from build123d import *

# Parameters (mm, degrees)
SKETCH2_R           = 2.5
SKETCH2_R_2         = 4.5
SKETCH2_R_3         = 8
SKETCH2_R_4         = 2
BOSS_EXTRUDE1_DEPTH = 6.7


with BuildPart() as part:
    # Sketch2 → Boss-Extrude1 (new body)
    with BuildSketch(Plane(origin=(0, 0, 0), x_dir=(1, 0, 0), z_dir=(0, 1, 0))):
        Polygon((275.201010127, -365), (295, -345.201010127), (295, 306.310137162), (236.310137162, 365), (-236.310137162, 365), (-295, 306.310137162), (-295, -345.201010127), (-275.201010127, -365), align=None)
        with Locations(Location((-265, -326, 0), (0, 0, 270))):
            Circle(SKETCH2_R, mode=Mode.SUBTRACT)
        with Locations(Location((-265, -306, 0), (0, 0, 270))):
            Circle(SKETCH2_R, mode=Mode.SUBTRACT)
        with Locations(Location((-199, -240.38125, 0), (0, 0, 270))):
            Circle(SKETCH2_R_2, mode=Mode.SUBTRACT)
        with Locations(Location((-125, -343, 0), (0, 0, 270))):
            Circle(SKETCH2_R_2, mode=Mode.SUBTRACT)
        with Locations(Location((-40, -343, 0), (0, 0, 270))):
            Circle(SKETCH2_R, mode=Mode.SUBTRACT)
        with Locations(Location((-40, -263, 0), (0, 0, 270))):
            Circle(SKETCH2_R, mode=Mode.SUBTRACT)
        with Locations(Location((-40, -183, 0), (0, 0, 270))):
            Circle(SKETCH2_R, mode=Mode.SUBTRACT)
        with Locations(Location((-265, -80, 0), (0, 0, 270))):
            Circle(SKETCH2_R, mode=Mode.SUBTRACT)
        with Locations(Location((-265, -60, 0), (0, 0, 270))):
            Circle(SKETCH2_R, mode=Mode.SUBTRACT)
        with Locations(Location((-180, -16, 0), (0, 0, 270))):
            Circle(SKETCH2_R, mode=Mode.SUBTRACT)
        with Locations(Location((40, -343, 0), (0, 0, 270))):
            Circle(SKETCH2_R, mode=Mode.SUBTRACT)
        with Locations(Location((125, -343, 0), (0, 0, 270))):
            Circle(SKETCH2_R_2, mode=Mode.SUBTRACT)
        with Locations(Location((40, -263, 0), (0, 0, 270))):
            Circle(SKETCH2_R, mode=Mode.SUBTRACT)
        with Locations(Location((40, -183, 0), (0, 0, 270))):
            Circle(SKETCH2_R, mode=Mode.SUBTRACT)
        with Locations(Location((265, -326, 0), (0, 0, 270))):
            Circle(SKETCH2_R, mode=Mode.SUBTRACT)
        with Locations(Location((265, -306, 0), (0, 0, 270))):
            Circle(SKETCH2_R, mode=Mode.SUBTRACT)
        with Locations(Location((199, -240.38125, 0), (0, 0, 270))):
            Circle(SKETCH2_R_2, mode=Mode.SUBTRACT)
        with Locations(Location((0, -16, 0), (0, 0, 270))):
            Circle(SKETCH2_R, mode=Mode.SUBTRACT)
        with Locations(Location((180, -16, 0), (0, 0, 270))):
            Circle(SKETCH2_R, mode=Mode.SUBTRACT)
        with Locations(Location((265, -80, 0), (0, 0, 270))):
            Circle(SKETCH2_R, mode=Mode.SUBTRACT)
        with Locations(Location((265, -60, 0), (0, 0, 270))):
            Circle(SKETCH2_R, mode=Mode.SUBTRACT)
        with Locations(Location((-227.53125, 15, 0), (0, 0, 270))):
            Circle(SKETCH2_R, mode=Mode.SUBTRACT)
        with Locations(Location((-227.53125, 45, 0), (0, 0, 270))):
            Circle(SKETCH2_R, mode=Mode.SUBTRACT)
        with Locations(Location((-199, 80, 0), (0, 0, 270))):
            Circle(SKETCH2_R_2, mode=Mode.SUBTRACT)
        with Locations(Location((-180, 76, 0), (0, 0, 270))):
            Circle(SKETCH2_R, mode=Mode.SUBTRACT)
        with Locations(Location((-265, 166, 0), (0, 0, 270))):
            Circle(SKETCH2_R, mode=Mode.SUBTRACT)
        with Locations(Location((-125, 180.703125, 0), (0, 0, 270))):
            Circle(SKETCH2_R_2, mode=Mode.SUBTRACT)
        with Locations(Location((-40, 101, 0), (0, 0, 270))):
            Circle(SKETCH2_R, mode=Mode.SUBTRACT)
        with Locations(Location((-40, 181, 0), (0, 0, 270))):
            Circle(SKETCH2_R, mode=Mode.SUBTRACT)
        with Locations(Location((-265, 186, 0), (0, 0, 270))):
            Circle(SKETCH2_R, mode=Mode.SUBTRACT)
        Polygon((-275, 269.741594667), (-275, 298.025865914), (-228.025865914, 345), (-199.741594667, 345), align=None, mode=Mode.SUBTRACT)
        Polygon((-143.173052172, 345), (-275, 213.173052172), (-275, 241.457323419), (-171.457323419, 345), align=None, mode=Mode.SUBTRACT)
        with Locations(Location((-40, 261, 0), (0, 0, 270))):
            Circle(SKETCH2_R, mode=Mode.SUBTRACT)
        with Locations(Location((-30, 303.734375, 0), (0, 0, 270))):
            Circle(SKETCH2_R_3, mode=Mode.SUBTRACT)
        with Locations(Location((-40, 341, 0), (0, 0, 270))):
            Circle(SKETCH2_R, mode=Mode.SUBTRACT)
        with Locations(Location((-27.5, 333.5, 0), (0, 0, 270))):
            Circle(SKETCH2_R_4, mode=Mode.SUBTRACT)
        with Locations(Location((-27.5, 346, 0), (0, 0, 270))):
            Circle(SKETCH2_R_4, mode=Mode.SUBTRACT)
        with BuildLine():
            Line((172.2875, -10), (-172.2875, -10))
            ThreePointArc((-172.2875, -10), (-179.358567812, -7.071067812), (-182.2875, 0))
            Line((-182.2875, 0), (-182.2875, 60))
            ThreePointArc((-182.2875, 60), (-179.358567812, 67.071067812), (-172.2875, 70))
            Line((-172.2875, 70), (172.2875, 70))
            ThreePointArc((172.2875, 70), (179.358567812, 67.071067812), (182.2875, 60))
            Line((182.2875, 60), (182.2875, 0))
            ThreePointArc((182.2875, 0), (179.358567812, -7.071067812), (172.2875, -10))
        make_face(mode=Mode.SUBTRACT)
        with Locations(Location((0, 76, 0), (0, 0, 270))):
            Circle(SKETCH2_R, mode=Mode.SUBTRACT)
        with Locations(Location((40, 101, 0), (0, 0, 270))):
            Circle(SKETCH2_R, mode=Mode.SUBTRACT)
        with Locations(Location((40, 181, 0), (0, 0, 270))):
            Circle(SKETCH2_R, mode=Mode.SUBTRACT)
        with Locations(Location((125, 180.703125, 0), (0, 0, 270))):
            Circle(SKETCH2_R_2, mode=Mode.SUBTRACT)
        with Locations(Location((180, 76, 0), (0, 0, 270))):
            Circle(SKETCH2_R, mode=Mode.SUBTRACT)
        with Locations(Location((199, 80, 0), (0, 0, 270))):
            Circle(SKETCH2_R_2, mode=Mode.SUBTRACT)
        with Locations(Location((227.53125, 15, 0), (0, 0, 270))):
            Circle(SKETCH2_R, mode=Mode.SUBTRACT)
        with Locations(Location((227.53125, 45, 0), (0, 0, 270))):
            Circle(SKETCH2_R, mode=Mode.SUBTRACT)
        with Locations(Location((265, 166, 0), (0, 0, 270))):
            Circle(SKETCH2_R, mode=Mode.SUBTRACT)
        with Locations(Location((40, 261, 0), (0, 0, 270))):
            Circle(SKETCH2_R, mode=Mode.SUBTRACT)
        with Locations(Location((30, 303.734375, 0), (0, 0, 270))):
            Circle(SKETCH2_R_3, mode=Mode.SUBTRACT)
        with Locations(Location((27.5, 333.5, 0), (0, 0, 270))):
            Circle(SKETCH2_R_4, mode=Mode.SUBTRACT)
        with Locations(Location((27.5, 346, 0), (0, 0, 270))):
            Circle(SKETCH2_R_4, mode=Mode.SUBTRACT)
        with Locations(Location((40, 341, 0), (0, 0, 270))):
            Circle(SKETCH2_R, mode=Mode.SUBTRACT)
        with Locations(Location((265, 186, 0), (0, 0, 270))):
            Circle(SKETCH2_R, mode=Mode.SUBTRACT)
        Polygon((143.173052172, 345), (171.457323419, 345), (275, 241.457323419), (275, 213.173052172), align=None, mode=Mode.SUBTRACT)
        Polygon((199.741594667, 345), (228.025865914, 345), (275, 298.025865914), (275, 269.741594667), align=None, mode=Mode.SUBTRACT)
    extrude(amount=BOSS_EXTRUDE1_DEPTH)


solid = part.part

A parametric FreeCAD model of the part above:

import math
import FreeCAD as App
import Part
import Sketcher

V = App.Vector
Q = App.Units.Quantity


def add_polygon(sketch, points):
    """Adds a closed chain of lines whose ends are joined by coincident constraints."""
    first, n = sketch.GeometryCount, len(points)
    for a, b in zip(points, points[1:] + points[:1]):
        sketch.addGeometry(Part.LineSegment(App.Vector(*a, 0), App.Vector(*b, 0)), False)
    for i in range(n):
        sketch.addConstraint(Sketcher.Constraint("Coincident", first + i, 2, first + (i + 1) % n, 1))

doc = App.newDocument("Part")
body = doc.addObject("PartDesign::Body", "Body")

sketch1 = body.newObject("Sketcher::SketchObject", "Sketch")
sketch1.AttachmentSupport = (doc.getObject("XZ_Plane"), [""])
sketch1.MapMode = "FlatFace"
add_polygon(sketch1, [(275.2, 365), (295, 345.2), (295, -306.3), (236.3, -365), (-236.3, -365), (-295, -306.3), (-295, 345.2), (-275.2, 365)])
sketch1.addGeometry(Part.Circle(V(-265, 326, 0), V(0, 0, 1), 2.5), False)
sketch1.addGeometry(Part.Circle(V(-265, 306, 0), V(0, 0, 1), 2.5), False)
sketch1.addGeometry(Part.Circle(V(-199, 240.4, 0), V(0, 0, 1), 4.5), False)
sketch1.addGeometry(Part.Circle(V(-125, 343, 0), V(0, 0, 1), 4.5), False)
sketch1.addGeometry(Part.Circle(V(-40, 343, 0), V(0, 0, 1), 2.5), False)
sketch1.addGeometry(Part.Circle(V(-40, 263, 0), V(0, 0, 1), 2.5), False)
sketch1.addGeometry(Part.Circle(V(-40, 183, 0), V(0, 0, 1), 2.5), False)
sketch1.addGeometry(Part.Circle(V(-265, 80, 0), V(0, 0, 1), 2.5), False)
sketch1.addGeometry(Part.Circle(V(-265, 60, 0), V(0, 0, 1), 2.5), False)
sketch1.addGeometry(Part.Circle(V(-180, 16, 0), V(0, 0, 1), 2.5), False)
sketch1.addGeometry(Part.Circle(V(40, 343, 0), V(0, 0, 1), 2.5), False)
sketch1.addGeometry(Part.Circle(V(40, 263, 0), V(0, 0, 1), 2.5), False)
sketch1.addGeometry(Part.Circle(V(125, 343, 0), V(0, 0, 1), 4.5), False)
sketch1.addGeometry(Part.Circle(V(40, 183, 0), V(0, 0, 1), 2.5), False)
sketch1.addGeometry(Part.Circle(V(265, 326, 0), V(0, 0, 1), 2.5), False)
sketch1.addGeometry(Part.Circle(V(265, 306, 0), V(0, 0, 1), 2.5), False)
sketch1.addGeometry(Part.Circle(V(199, 240.4, 0), V(0, 0, 1), 4.5), False)
sketch1.addGeometry(Part.Circle(V(0, 16, 0), V(0, 0, 1), 2.5), False)
sketch1.addGeometry(Part.Circle(V(180, 16, 0), V(0, 0, 1), 2.5), False)
sketch1.addGeometry(Part.Circle(V(265, 80, 0), V(0, 0, 1), 2.5), False)
sketch1.addGeometry(Part.Circle(V(265, 60, 0), V(0, 0, 1), 2.5), False)
sketch1.addGeometry(Part.Circle(V(-227.5, -15, 0), V(0, 0, 1), 2.5), False)
sketch1.addGeometry(Part.Circle(V(-227.5, -45, 0), V(0, 0, 1), 2.5), False)
sketch1.addGeometry(Part.Circle(V(-199, -80, 0), V(0, 0, 1), 4.5), False)
sketch1.addGeometry(Part.Circle(V(-180, -76, 0), V(0, 0, 1), 2.5), False)
sketch1.addGeometry(Part.Circle(V(-265, -166, 0), V(0, 0, 1), 2.5), False)
sketch1.addGeometry(Part.Circle(V(-40, -101, 0), V(0, 0, 1), 2.5), False)
sketch1.addGeometry(Part.Circle(V(-265, -186, 0), V(0, 0, 1), 2.5), False)
add_polygon(sketch1, [(-171.5, -345), (-143.2, -345), (-275, -213.2), (-275, -241.5)])
add_polygon(sketch1, [(-199.7, -345), (-275, -269.7), (-275, -298), (-228, -345)])
sketch1.addGeometry(Part.Circle(V(-125, -180.7, 0), V(0, 0, 1), 4.5), False)
sketch1.addGeometry(Part.Circle(V(-40, -181, 0), V(0, 0, 1), 2.5), False)
sketch1.addGeometry(Part.Circle(V(-40, -261, 0), V(0, 0, 1), 2.5), False)
sketch1.addGeometry(Part.Circle(V(-30, -303.7, 0), V(0, 0, 1), 8), False)
sketch1.addGeometry(Part.Circle(V(-40, -341, 0), V(0, 0, 1), 2.5), False)
sketch1.addGeometry(Part.Circle(V(-27.5, -333.5, 0), V(0, 0, 1), 2), False)
sketch1.addGeometry(Part.Circle(V(-27.5, -346, 0), V(0, 0, 1), 2), False)
sketch1.addGeometry(Part.ArcOfCircle(Part.Circle(V(172.3, 0, 0), V(0, 0, 1), 10), math.radians(0), math.radians(90)), False)
sketch1.addGeometry(Part.LineSegment(V(172.3, 10, 0), V(-172.3, 10, 0)), False)
sketch1.addGeometry(Part.ArcOfCircle(Part.Circle(V(-172.3, 0, 0), V(0, 0, 1), 10), math.radians(90), math.radians(180)), False)
sketch1.addGeometry(Part.LineSegment(V(-182.3, 0, 0), V(-182.3, -60, 0)), False)
sketch1.addGeometry(Part.ArcOfCircle(Part.Circle(V(-172.3, -60, 0), V(0, 0, 1), 10), math.radians(180), math.radians(270)), False)
sketch1.addGeometry(Part.LineSegment(V(-172.3, -70, 0), V(172.3, -70, 0)), False)
sketch1.addGeometry(Part.ArcOfCircle(Part.Circle(V(172.3, -60, 0), V(0, 0, 1), 10), math.radians(-90), math.radians(0)), False)
sketch1.addGeometry(Part.LineSegment(V(182.3, -60, 0), V(182.3, 0, 0)), False)
sketch1.addGeometry(Part.Circle(V(0, -76, 0), V(0, 0, 1), 2.5), False)
sketch1.addGeometry(Part.Circle(V(40, -101, 0), V(0, 0, 1), 2.5), False)
sketch1.addGeometry(Part.Circle(V(180, -76, 0), V(0, 0, 1), 2.5), False)
sketch1.addGeometry(Part.Circle(V(199, -80, 0), V(0, 0, 1), 4.5), False)
sketch1.addGeometry(Part.Circle(V(227.5, -15, 0), V(0, 0, 1), 2.5), False)
sketch1.addGeometry(Part.Circle(V(227.5, -45, 0), V(0, 0, 1), 2.5), False)
sketch1.addGeometry(Part.Circle(V(265, -166, 0), V(0, 0, 1), 2.5), False)
sketch1.addGeometry(Part.Circle(V(40, -181, 0), V(0, 0, 1), 2.5), False)
sketch1.addGeometry(Part.Circle(V(40, -261, 0), V(0, 0, 1), 2.5), False)
sketch1.addGeometry(Part.Circle(V(125, -180.7, 0), V(0, 0, 1), 4.5), False)
sketch1.addGeometry(Part.Circle(V(30, -303.7, 0), V(0, 0, 1), 8), False)
sketch1.addGeometry(Part.Circle(V(27.5, -333.5, 0), V(0, 0, 1), 2), False)
sketch1.addGeometry(Part.Circle(V(27.5, -346, 0), V(0, 0, 1), 2), False)
sketch1.addGeometry(Part.Circle(V(40, -341, 0), V(0, 0, 1), 2.5), False)
sketch1.addGeometry(Part.Circle(V(265, -186, 0), V(0, 0, 1), 2.5), False)
add_polygon(sketch1, [(275, -213.2), (143.2, -345), (171.5, -345), (275, -241.5)])
add_polygon(sketch1, [(275, -269.7), (199.7, -345), (228, -345), (275, -298)])
sketch1.addConstraint(Sketcher.Constraint("Tangent", 51, 2, 52, 1))
sketch1.addConstraint(Sketcher.Constraint("Tangent", 52, 2, 53, 1))
sketch1.addConstraint(Sketcher.Constraint("Tangent", 53, 2, 54, 1))
sketch1.addConstraint(Sketcher.Constraint("Tangent", 54, 2, 55, 1))
sketch1.addConstraint(Sketcher.Constraint("Tangent", 55, 2, 56, 1))
sketch1.addConstraint(Sketcher.Constraint("Tangent", 56, 2, 57, 1))
sketch1.addConstraint(Sketcher.Constraint("Tangent", 57, 2, 58, 1))
sketch1.addConstraint(Sketcher.Constraint("Tangent", 58, 2, 51, 1))
sketch1.addConstraint(Sketcher.Constraint("Vertical", 1))
sketch1.addConstraint(Sketcher.Constraint("Horizontal", 3))
sketch1.addConstraint(Sketcher.Constraint("Vertical", 5))
sketch1.addConstraint(Sketcher.Constraint("Horizontal", 7))
sketch1.addConstraint(Sketcher.Constraint("Horizontal", 36))
sketch1.addConstraint(Sketcher.Constraint("Vertical", 38))
sketch1.addConstraint(Sketcher.Constraint("Vertical", 41))
sketch1.addConstraint(Sketcher.Constraint("Horizontal", 43))
sketch1.addConstraint(Sketcher.Constraint("Horizontal", 52))
sketch1.addConstraint(Sketcher.Constraint("Vertical", 54))
sketch1.addConstraint(Sketcher.Constraint("Horizontal", 56))
sketch1.addConstraint(Sketcher.Constraint("Vertical", 58))
sketch1.addConstraint(Sketcher.Constraint("Horizontal", 75))
sketch1.addConstraint(Sketcher.Constraint("Vertical", 77))
sketch1.addConstraint(Sketcher.Constraint("Horizontal", 79))
sketch1.addConstraint(Sketcher.Constraint("Vertical", 81))
sketch1.addConstraint(Sketcher.Constraint("Equal", 8, 9))
sketch1.addConstraint(Sketcher.Constraint("Equal", 10, 11))
sketch1.addConstraint(Sketcher.Constraint("Equal", 9, 12))
sketch1.addConstraint(Sketcher.Constraint("Equal", 12, 13))
sketch1.addConstraint(Sketcher.Constraint("Equal", 13, 14))
sketch1.addConstraint(Sketcher.Constraint("Equal", 14, 15))
sketch1.addConstraint(Sketcher.Constraint("Equal", 15, 16))
sketch1.addConstraint(Sketcher.Constraint("Equal", 16, 17))
sketch1.addConstraint(Sketcher.Constraint("Equal", 17, 18))
sketch1.addConstraint(Sketcher.Constraint("Equal", 18, 19))
sketch1.addConstraint(Sketcher.Constraint("Equal", 11, 20))
sketch1.addConstraint(Sketcher.Constraint("Equal", 19, 21))
sketch1.addConstraint(Sketcher.Constraint("Equal", 21, 22))
sketch1.addConstraint(Sketcher.Constraint("Equal", 22, 23))
sketch1.addConstraint(Sketcher.Constraint("Equal", 20, 24))
sketch1.addConstraint(Sketcher.Constraint("Equal", 23, 25))
sketch1.addConstraint(Sketcher.Constraint("Equal", 25, 26))
sketch1.addConstraint(Sketcher.Constraint("Equal", 26, 27))
sketch1.addConstraint(Sketcher.Constraint("Equal", 27, 28))
sketch1.addConstraint(Sketcher.Constraint("Equal", 28, 29))
sketch1.addConstraint(Sketcher.Constraint("Equal", 29, 30))
sketch1.addConstraint(Sketcher.Constraint("Equal", 24, 31))
sketch1.addConstraint(Sketcher.Constraint("Equal", 30, 32))
sketch1.addConstraint(Sketcher.Constraint("Equal", 32, 33))
sketch1.addConstraint(Sketcher.Constraint("Equal", 33, 34))
sketch1.addConstraint(Sketcher.Constraint("Equal", 34, 35))
sketch1.addConstraint(Sketcher.Constraint("Equal", 31, 44))
sketch1.addConstraint(Sketcher.Constraint("Equal", 35, 45))
sketch1.addConstraint(Sketcher.Constraint("Equal", 45, 46))
sketch1.addConstraint(Sketcher.Constraint("Equal", 46, 48))
sketch1.addConstraint(Sketcher.Constraint("Equal", 49, 50))
sketch1.addConstraint(Sketcher.Constraint("Equal", 51, 53))
sketch1.addConstraint(Sketcher.Constraint("Equal", 53, 55))
sketch1.addConstraint(Sketcher.Constraint("Equal", 55, 57))
sketch1.addConstraint(Sketcher.Constraint("Equal", 48, 59))
sketch1.addConstraint(Sketcher.Constraint("Equal", 59, 60))
sketch1.addConstraint(Sketcher.Constraint("Equal", 60, 61))
sketch1.addConstraint(Sketcher.Constraint("Equal", 44, 62))
sketch1.addConstraint(Sketcher.Constraint("Equal", 61, 63))
sketch1.addConstraint(Sketcher.Constraint("Equal", 63, 64))
sketch1.addConstraint(Sketcher.Constraint("Equal", 64, 65))
sketch1.addConstraint(Sketcher.Constraint("Equal", 65, 66))
sketch1.addConstraint(Sketcher.Constraint("Equal", 66, 67))
sketch1.addConstraint(Sketcher.Constraint("Equal", 62, 68))
sketch1.addConstraint(Sketcher.Constraint("Equal", 47, 69))
sketch1.addConstraint(Sketcher.Constraint("Equal", 50, 70))
sketch1.addConstraint(Sketcher.Constraint("Equal", 70, 71))
sketch1.addConstraint(Sketcher.Constraint("Equal", 67, 72))
sketch1.addConstraint(Sketcher.Constraint("Equal", 72, 73))
sketch1.addConstraint(Sketcher.Constraint("Symmetric", 51, 3, 53, 3, -1, 1))
sketch1.addConstraint(Sketcher.Constraint("Symmetric", 12, 3, 18, 3, -2))
sketch1.addConstraint(Sketcher.Constraint("Symmetric", 13, 3, 19, 3, -2))
sketch1.addConstraint(Sketcher.Constraint("Symmetric", 11, 3, 20, 3, -2))
sketch1.addConstraint(Sketcher.Constraint("Symmetric", 14, 3, 21, 3, -2))
sketch1.addConstraint(Sketcher.Constraint("Symmetric", 8, 3, 22, 3, -2))
sketch1.addConstraint(Sketcher.Constraint("Symmetric", 9, 3, 23, 3, -2))
sketch1.addConstraint(Sketcher.Constraint("Symmetric", 10, 3, 24, 3, -2))
sketch1.addConstraint(Sketcher.Constraint("Symmetric", 17, 3, 26, 3, -2))
sketch1.addConstraint(Sketcher.Constraint("Symmetric", 15, 3, 27, 3, -2))
sketch1.addConstraint(Sketcher.Constraint("Symmetric", 16, 3, 28, 3, -2))
sketch1.addConstraint(Sketcher.Constraint("Symmetric", 34, 3, 60, 3, -2))
sketch1.addConstraint(Sketcher.Constraint("Symmetric", 32, 3, 61, 3, -2))
sketch1.addConstraint(Sketcher.Constraint("Symmetric", 31, 3, 62, 3, -2))
sketch1.addConstraint(Sketcher.Constraint("Symmetric", 29, 3, 63, 3, -2))
sketch1.addConstraint(Sketcher.Constraint("Symmetric", 30, 3, 64, 3, -2))
sketch1.addConstraint(Sketcher.Constraint("Symmetric", 33, 3, 65, 3, -2))
sketch1.addConstraint(Sketcher.Constraint("Symmetric", 45, 3, 66, 3, -2))
sketch1.addConstraint(Sketcher.Constraint("Symmetric", 46, 3, 67, 3, -2))
sketch1.addConstraint(Sketcher.Constraint("Symmetric", 44, 3, 68, 3, -2))
sketch1.addConstraint(Sketcher.Constraint("Symmetric", 47, 3, 69, 3, -2))
sketch1.addConstraint(Sketcher.Constraint("Symmetric", 49, 3, 70, 3, -2))
sketch1.addConstraint(Sketcher.Constraint("Symmetric", 50, 3, 71, 3, -2))
sketch1.addConstraint(Sketcher.Constraint("Symmetric", 48, 3, 72, 3, -2))
sketch1.addConstraint(Sketcher.Constraint("Symmetric", 35, 3, 73, 3, -2))
sketch1.addConstraint(Sketcher.Constraint("Symmetric", 1, 2, 4, 2, -2))
sketch1.addConstraint(Sketcher.Constraint("Symmetric", 36, 2, 74, 2, -2))
sketch1.addConstraint(Sketcher.Constraint("Symmetric", 38, 2, 76, 2, -2))
sketch1.addConstraint(Sketcher.Constraint("Symmetric", 43, 2, 78, 2, -2))
sketch1.addConstraint(Sketcher.Constraint("Symmetric", 41, 2, 80, 2, -2))
sketch1.addConstraint(Sketcher.Constraint("PointOnObject", 25, 3, -2))
sketch1.addConstraint(Sketcher.Constraint("PointOnObject", 59, 3, -2))
sketch1.addConstraint(Sketcher.Constraint("Perpendicular", 0, 2))
sketch1.addConstraint(Sketcher.Constraint("Perpendicular", 2, 4))
sketch1.addConstraint(Sketcher.Constraint("Perpendicular", 4, 6))
sketch1.addConstraint(Sketcher.Constraint("Perpendicular", 6, 37))
sketch1.addConstraint(Sketcher.Constraint("Parallel", 37, 39))
sketch1.addConstraint(Sketcher.Constraint("Parallel", 39, 40))
sketch1.addConstraint(Sketcher.Constraint("Parallel", 40, 42))
sketch1.addConstraint(Sketcher.Constraint("Perpendicular", 42, 74))
sketch1.addConstraint(Sketcher.Constraint("Parallel", 74, 76))
sketch1.addConstraint(Sketcher.Constraint("Parallel", 76, 78))
sketch1.addConstraint(Sketcher.Constraint("Parallel", 78, 80))
sketch1.addConstraint(Sketcher.Constraint("Horizontal", 11, 3, 12, 3))
sketch1.addConstraint(Sketcher.Constraint("Horizontal", 17, 3, 25, 3))
sketch1.addConstraint(Sketcher.Constraint("Horizontal", 32, 3, 59, 3))
sketch1.addConstraint(Sketcher.Constraint("Horizontal", 0, 2, 5, 2))
sketch1.addConstraint(Sketcher.Constraint("Horizontal", 39, 2, 42, 2))
sketch1.addConstraint(Sketcher.Constraint("Horizontal", 37, 2, 77, 2))
sketch1.addConstraint(Sketcher.Constraint("Vertical", 8, 3, 9, 3))
sketch1.addConstraint(Sketcher.Constraint("Vertical", 12, 3, 13, 3))
sketch1.addConstraint(Sketcher.Constraint("Vertical", 13, 3, 14, 3))
sketch1.addConstraint(Sketcher.Constraint("Vertical", 9, 3, 15, 3))
sketch1.addConstraint(Sketcher.Constraint("Vertical", 15, 3, 16, 3))
sketch1.addConstraint(Sketcher.Constraint("Vertical", 29, 3, 30, 3))
sketch1.addConstraint(Sketcher.Constraint("Vertical", 10, 3, 31, 3))
sketch1.addConstraint(Sketcher.Constraint("Vertical", 17, 3, 32, 3))
sketch1.addConstraint(Sketcher.Constraint("Vertical", 16, 3, 33, 3))
sketch1.addConstraint(Sketcher.Constraint("Vertical", 14, 3, 34, 3))
sketch1.addConstraint(Sketcher.Constraint("Vertical", 33, 3, 35, 3))
sketch1.addConstraint(Sketcher.Constraint("Vertical", 11, 3, 44, 3))
sketch1.addConstraint(Sketcher.Constraint("Vertical", 34, 3, 45, 3))
sketch1.addConstraint(Sketcher.Constraint("Vertical", 45, 3, 46, 3))
sketch1.addConstraint(Sketcher.Constraint("Vertical", 46, 3, 48, 3))
sketch1.addConstraint(Sketcher.Constraint("Vertical", 49, 3, 50, 3))
sketch1.addConstraint(Sketcher.Constraint("Vertical", 38, 2, 40, 2))
sketch1.addConstraint(Sketcher.Constraint("Equal", 36, 43))
sketch1.addConstraint(Sketcher.Constraint("Diameter", 8, Q("5 mm")))
sketch1.addConstraint(Sketcher.Constraint("Diameter", 10, Q("9 mm")))
sketch1.addConstraint(Sketcher.Constraint("Diameter", 47, Q("16 mm")))
sketch1.addConstraint(Sketcher.Constraint("Diameter", 49, Q("4 mm")))
sketch1.addConstraint(Sketcher.Constraint("Radius", 51, Q("10 mm")))
sketch1.addConstraint(Sketcher.Constraint("DistanceY", 54, 2, 54, 1, Q("60 mm")))
sketch1.addConstraint(Sketcher.Constraint("Distance", 0, Q("28 mm")))
sketch1.addConstraint(Sketcher.Constraint("Distance", 2, Q("83 mm")))
sketch1.addConstraint(Sketcher.Constraint("DistanceX", 8, 3, -1, 1, Q("265 mm")))
sketch1.addConstraint(Sketcher.Constraint("DistanceY", -1, 1, 8, 3, Q("326 mm")))
sketch1.addConstraint(Sketcher.Constraint("DistanceY", -1, 1, 9, 3, Q("306 mm")))
sketch1.addConstraint(Sketcher.Constraint("DistanceX", 10, 3, -1, 1, Q("199 mm")))
sketch1.addConstraint(Sketcher.Constraint("DistanceX", 11, 3, -1, 1, Q("125 mm")))
sketch1.addConstraint(Sketcher.Constraint("DistanceY", -1, 1, 11, 3, Q("343 mm")))
sketch1.addConstraint(Sketcher.Constraint("DistanceX", 12, 3, -1, 1, Q("40 mm")))
sketch1.addConstraint(Sketcher.Constraint("DistanceY", -1, 1, 13, 3, Q("263 mm")))
sketch1.addConstraint(Sketcher.Constraint("DistanceY", -1, 1, 14, 3, Q("183 mm")))
sketch1.addConstraint(Sketcher.Constraint("DistanceY", -1, 1, 15, 3, Q("80 mm")))
sketch1.addConstraint(Sketcher.Constraint("DistanceY", -1, 1, 16, 3, Q("60 mm")))
sketch1.addConstraint(Sketcher.Constraint("DistanceX", 17, 3, -1, 1, Q("180 mm")))
sketch1.addConstraint(Sketcher.Constraint("DistanceY", -1, 1, 17, 3, Q("16 mm")))
sketch1.addConstraint(Sketcher.Constraint("DistanceY", 29, 3, -1, 1, Q("15 mm")))
sketch1.addConstraint(Sketcher.Constraint("DistanceY", 30, 3, -1, 1, Q("45 mm")))
sketch1.addConstraint(Sketcher.Constraint("DistanceY", 31, 3, -1, 1, Q("80 mm")))
sketch1.addConstraint(Sketcher.Constraint("DistanceY", 32, 3, -1, 1, Q("76 mm")))
sketch1.addConstraint(Sketcher.Constraint("DistanceY", 33, 3, -1, 1, Q("166 mm")))
sketch1.addConstraint(Sketcher.Constraint("DistanceY", 34, 3, -1, 1, Q("101 mm")))
sketch1.addConstraint(Sketcher.Constraint("DistanceY", 35, 3, -1, 1, Q("186 mm")))
sketch1.addConstraint(Sketcher.Constraint("DistanceY", 45, 3, -1, 1, Q("181 mm")))
sketch1.addConstraint(Sketcher.Constraint("DistanceY", 46, 3, -1, 1, Q("261 mm")))
sketch1.addConstraint(Sketcher.Constraint("DistanceX", 47, 3, -1, 1, Q("30 mm")))
sketch1.addConstraint(Sketcher.Constraint("DistanceY", 48, 3, -1, 1, Q("341 mm")))
sketch1.addConstraint(Sketcher.Constraint("DistanceY", 50, 3, -1, 1, Q("346 mm")))
sketch1.addConstraint(Sketcher.Constraint("DistanceX", -1, 1, 0, 2, Q("295 mm")))
sketch1.addConstraint(Sketcher.Constraint("DistanceY", 2, 2, -1, 1, Q("365 mm")))
sketch1.addConstraint(Sketcher.Constraint("DistanceY", -1, 1, 6, 2, Q("365 mm")))
sketch1.addConstraint(Sketcher.Constraint("DistanceY", 36, 2, -1, 1, Q("345 mm")))
sketch1.addConstraint(Sketcher.Constraint("DistanceX", 37, 2, -1, 1, Q("275 mm")))
sketch1.addConstraint(Sketcher.Constraint("DistanceX", 49, 3, -1, 1, Q("27.5 mm")))
sketch1.addConstraint(Sketcher.Constraint("DistanceY", 49, 3, -1, 1, Q("333.5 mm")))
sketch1.addConstraint(Sketcher.Constraint("DistanceX", 52, 2, 52, 1, Q("344.575 mm")))
sketch1.addConstraint(Sketcher.Constraint("DistanceX", 36, 1, 36, 2, Q("28.284271 mm")))
sketch1.addConstraint(Sketcher.Constraint("DistanceY", -1, 1, 10, 3, Q("240.38125 mm")))
sketch1.addConstraint(Sketcher.Constraint("DistanceX", 29, 3, -1, 1, Q("227.53125 mm")))
sketch1.addConstraint(Sketcher.Constraint("Distance", 37, Q("186.431458 mm")))
sketch1.addConstraint(Sketcher.Constraint("Distance", 40, Q("106.431458 mm")))
sketch1.addConstraint(Sketcher.Constraint("DistanceY", 44, 3, -1, 1, Q("180.703125 mm")))
sketch1.addConstraint(Sketcher.Constraint("DistanceY", 47, 3, -1, 1, Q("303.734375 mm")))
pad1 = body.newObject("PartDesign::Pad", "Pad")
pad1.Profile = sketch1
pad1.Length = 6.7
pad1.Reversed = True

doc.recompute()
